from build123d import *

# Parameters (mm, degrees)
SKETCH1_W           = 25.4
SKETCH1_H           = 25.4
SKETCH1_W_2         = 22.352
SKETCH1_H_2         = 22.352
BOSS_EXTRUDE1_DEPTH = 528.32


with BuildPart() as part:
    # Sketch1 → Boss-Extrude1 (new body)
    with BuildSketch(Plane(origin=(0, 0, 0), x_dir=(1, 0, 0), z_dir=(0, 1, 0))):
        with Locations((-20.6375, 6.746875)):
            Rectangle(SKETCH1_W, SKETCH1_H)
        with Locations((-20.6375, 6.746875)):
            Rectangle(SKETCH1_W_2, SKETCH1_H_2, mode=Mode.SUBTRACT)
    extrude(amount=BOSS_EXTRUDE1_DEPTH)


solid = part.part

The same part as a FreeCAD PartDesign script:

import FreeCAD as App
import Part
import Sketcher
from FreeCAD import Vector
Q = App.Units.Quantity

doc = App.newDocument("Part")
body = doc.addObject("PartDesign::Body", "Body")

sketch1 = body.newObject("Sketcher::SketchObject", "Sketch")
sketch1.AttachmentSupport = (doc.getObject("XZ_Plane"), [""])
sketch1.MapMode = "FlatFace"
sketch1.addGeometry(Part.LineSegment(Vector(-33, -19, 0), Vector(-33, 6, 0)), False)
sketch1.addGeometry(Part.LineSegment(Vector(-33, 6, 0), Vector(-8, 6, 0)), False)
sketch1.addGeometry(Part.LineSegment(Vector(-8, 6, 0), Vector(-8, -19, 0)), False)
sketch1.addGeometry(Part.LineSegment(Vector(-8, -19, 0), Vector(-33, -19, 0)), False)
sketch1.addGeometry(Part.LineSegment(Vector(-9, 4, 0), Vector(-32, 4, 0)), False)
sketch1.addGeometry(Part.LineSegment(Vector(-32, 4, 0), Vector(-32, -18, 0)), False)
sketch1.addGeometry(Part.LineSegment(Vector(-32, -18, 0), Vector(-9, -18, 0)), False)
sketch1.addGeometry(Part.LineSegment(Vector(-9, -18, 0), Vector(-9, 4, 0)), False)
sketch1.addConstraint(Sketcher.Constraint("Coincident", 0, 2, 1, 1))
sketch1.addConstraint(Sketcher.Constraint("Coincident", 1, 2, 2, 1))
sketch1.addConstraint(Sketcher.Constraint("Coincident", 2, 2, 3, 1))
sketch1.addConstraint(Sketcher.Constraint("Coincident", 3, 2, 0, 1))
sketch1.addConstraint(Sketcher.Constraint("Coincident", 4, 2, 5, 1))
sketch1.addConstraint(Sketcher.Constraint("Coincident", 5, 2, 6, 1))
sketch1.addConstraint(Sketcher.Constraint("Coincident", 6, 2, 7, 1))
sketch1.addConstraint(Sketcher.Constraint("Coincident", 7, 2, 4, 1))
sketch1.addConstraint(Sketcher.Constraint("Vertical", 0))
sketch1.addConstraint(Sketcher.Constraint("Horizontal", 1))
sketch1.addConstraint(Sketcher.Constraint("Vertical", 2))
sketch1.addConstraint(Sketcher.Constraint("Horizontal", 3))
sketch1.addConstraint(Sketcher.Constraint("Horizontal", 4))
sketch1.addConstraint(Sketcher.Constraint("Vertical", 5))
sketch1.addConstraint(Sketcher.Constraint("Horizontal", 6))
sketch1.addConstraint(Sketcher.Constraint("Vertical", 7))
sketch1.addConstraint(Sketcher.Constraint("Equal", 3, 0))
sketch1.addConstraint(Sketcher.Constraint("Equal", 6, 5))
sketch1.addConstraint(Sketcher.Constraint("DistanceX", 1, 1, 1, 2, Q("1 in")))
sketch1.addConstraint(Sketcher.Constraint("DistanceX", 4, 2, 4, 1, Q("0.88 in")))
sketch1.addConstraint(Sketcher.Constraint("DistanceX", 0, 2, 4, 2, Q("0.06 in")))
sketch1.addConstraint(Sketcher.Constraint("DistanceY", 4, 2, 0, 2, Q("0.06 in")))
sketch1.addConstraint(Sketcher.Constraint("DistanceX", 0, 2, -1, 1, Q("1.3125 in")))
sketch1.addConstraint(Sketcher.Constraint("DistanceY", -1, 1, 0, 2, Q("0.234375 in")))
pad1 = body.newObject("PartDesign::Pad", "Pad")
pad1.Profile = sketch1
pad1.Length = Q("20.8 in")
pad1.Reversed = True

doc.recompute()
